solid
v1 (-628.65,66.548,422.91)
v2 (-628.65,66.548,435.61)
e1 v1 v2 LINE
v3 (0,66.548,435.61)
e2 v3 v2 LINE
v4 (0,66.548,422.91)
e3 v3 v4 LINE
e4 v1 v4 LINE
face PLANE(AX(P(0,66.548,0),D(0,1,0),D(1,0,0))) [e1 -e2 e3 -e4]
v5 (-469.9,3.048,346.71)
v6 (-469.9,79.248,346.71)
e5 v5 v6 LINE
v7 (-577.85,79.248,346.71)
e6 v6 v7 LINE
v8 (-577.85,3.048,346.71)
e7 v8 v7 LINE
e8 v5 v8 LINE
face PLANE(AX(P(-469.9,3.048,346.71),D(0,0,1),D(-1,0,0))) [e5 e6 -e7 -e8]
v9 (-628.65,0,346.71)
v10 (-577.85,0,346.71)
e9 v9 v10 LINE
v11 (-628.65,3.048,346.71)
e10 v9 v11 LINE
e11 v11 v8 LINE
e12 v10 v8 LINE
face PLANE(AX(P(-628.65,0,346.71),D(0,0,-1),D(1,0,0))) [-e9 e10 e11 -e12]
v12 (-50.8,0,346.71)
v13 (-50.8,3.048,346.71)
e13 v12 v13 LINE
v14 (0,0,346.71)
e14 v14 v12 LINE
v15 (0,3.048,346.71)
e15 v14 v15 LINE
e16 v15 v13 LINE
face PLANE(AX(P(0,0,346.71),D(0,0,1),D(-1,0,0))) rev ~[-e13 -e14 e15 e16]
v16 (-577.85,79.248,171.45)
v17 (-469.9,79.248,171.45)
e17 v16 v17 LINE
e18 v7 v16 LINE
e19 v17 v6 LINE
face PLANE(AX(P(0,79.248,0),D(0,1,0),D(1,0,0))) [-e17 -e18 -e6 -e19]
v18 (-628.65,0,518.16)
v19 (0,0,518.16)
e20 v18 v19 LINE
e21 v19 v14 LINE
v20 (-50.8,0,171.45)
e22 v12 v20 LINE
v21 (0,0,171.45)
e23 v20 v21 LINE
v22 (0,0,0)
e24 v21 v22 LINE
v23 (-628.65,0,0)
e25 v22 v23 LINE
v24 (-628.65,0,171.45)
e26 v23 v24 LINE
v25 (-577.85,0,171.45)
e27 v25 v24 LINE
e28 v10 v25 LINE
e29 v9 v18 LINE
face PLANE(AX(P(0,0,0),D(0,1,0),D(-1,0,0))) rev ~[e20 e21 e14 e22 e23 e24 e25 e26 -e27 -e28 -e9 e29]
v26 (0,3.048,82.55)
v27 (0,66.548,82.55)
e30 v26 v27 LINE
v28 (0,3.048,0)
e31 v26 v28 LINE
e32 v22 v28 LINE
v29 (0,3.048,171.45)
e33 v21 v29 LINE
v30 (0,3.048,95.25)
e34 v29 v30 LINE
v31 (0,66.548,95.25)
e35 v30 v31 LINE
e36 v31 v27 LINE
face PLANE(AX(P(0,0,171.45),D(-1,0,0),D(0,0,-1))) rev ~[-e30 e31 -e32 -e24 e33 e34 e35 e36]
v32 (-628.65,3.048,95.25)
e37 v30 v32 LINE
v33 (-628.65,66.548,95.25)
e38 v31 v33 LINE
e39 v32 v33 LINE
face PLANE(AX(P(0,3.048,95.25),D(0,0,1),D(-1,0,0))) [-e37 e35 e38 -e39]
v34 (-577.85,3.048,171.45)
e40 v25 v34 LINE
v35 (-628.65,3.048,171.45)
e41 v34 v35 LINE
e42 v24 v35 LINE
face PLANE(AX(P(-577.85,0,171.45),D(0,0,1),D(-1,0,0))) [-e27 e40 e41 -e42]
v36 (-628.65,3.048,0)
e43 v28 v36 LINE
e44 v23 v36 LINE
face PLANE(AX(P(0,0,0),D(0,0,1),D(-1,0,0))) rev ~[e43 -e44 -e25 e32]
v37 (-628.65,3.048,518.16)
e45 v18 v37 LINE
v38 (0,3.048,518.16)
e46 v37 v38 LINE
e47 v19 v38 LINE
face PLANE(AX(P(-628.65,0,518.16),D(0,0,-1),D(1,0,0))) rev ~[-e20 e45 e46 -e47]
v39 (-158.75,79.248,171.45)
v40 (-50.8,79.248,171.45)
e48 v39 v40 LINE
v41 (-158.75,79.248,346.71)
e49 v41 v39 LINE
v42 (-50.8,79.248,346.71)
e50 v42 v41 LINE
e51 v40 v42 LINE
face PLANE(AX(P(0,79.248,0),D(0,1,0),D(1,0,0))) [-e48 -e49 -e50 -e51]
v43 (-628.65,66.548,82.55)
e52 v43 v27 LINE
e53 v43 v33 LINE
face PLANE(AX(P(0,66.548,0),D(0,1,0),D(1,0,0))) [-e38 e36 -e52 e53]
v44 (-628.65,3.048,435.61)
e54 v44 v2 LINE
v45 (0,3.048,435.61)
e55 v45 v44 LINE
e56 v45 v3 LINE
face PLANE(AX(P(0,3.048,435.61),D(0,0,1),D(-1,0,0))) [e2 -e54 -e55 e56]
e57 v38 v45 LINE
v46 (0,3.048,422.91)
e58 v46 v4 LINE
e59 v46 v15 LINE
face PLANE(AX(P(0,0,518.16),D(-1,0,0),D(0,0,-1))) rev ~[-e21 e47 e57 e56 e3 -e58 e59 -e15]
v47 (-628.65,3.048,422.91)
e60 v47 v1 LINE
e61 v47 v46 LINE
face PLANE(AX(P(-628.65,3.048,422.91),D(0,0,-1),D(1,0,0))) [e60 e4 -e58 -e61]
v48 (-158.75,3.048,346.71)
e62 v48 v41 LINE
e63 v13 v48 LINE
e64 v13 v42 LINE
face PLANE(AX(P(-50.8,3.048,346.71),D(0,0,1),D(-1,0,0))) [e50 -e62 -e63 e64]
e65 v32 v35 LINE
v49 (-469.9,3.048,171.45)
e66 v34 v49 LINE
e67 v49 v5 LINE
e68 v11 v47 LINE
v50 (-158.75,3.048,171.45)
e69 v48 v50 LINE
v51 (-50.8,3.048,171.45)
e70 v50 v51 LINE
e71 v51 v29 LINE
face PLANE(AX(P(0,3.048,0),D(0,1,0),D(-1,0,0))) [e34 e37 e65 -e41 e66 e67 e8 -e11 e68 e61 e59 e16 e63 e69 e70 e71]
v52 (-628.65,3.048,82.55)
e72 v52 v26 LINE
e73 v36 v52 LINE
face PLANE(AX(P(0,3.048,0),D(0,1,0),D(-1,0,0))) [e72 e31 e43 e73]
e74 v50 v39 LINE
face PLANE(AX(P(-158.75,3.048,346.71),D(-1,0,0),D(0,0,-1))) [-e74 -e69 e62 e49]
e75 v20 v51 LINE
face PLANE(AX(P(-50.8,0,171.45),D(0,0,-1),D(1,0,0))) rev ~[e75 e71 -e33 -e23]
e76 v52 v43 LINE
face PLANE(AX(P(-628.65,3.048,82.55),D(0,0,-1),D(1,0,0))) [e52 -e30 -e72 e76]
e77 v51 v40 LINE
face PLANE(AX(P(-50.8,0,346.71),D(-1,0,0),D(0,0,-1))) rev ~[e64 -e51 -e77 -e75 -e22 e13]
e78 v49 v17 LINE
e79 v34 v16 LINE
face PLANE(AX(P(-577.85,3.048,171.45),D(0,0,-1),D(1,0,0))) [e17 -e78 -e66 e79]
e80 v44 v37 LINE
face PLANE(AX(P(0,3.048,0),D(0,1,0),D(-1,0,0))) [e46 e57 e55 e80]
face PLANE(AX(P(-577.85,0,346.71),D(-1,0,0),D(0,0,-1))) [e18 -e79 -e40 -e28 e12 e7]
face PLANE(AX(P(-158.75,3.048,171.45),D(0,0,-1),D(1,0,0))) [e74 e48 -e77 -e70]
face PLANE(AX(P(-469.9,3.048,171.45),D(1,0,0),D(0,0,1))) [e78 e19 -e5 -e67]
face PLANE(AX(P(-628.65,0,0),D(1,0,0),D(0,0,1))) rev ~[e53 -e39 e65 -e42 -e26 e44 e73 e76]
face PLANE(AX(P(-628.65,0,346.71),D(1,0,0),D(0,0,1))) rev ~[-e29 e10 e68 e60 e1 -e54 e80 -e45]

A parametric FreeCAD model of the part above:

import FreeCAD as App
import Part
import Sketcher
Q = App.Units.Quantity


def add_polygon(sketch, points):
    """Adds a closed chain of lines whose ends are joined by coincident constraints."""
    first, n = sketch.GeometryCount, len(points)
    for a, b in zip(points, points[1:] + points[:1]):
        sketch.addGeometry(Part.LineSegment(App.Vector(*a, 0), App.Vector(*b, 0)), False)
    for i in range(n):
        sketch.addConstraint(Sketcher.Constraint("Coincident", first + i, 2, first + (i + 1) % n, 1))

doc = App.newDocument("Part")
body = doc.addObject("PartDesign::Body", "Body")

sketch1 = body.newObject("Sketcher::SketchObject", "Sketch")
sketch1.AttachmentSupport = (doc.getObject("XZ_Plane"), [""])
sketch1.MapMode = "FlatFace"
add_polygon(sketch1, [(0, 171), (0, 0), (-629, 0), (-629, 171), (-578, 171), (-578, 347), (-629, 347), (-629, 518), (0, 518), (0, 347), (-51, 347), (-51, 171)])
sketch1.addConstraint([
    Sketcher.Constraint("Vertical", 0),
    Sketcher.Constraint("Horizontal", 1),
    Sketcher.Constraint("Vertical", 2),
    Sketcher.Constraint("Horizontal", 3),
    Sketcher.Constraint("Vertical", 4),
    Sketcher.Constraint("Horizontal", 5),
    Sketcher.Constraint("Vertical", 6),
    Sketcher.Constraint("Horizontal", 7),
    Sketcher.Constraint("Vertical", 8),
    Sketcher.Constraint("Horizontal", 9),
    Sketcher.Constraint("Vertical", 10),
    Sketcher.Constraint("Horizontal", 11),
    Sketcher.Constraint("Coincident", 0, 2, -1, 1),
    Sketcher.Constraint("PointOnObject", 7, 2, -2),
    Sketcher.Constraint("Horizontal", 5, 2, 8, 2),
    Sketcher.Constraint("Horizontal", 3, 2, 10, 2),
    Sketcher.Constraint("Vertical", 2, 2, 5, 2),
    Sketcher.Constraint("Equal", 5, 9),
    Sketcher.Constraint("Equal", 2, 6),
    Sketcher.Constraint("DistanceX", 3, 1, 3, 2, Q("2 in")),
    Sketcher.Constraint("DistanceX", 1, 2, 1, 1, Q("24.75 in")),
    Sketcher.Constraint("DistanceY", 0, 2, 0, 1, Q("6.75 in")),
    Sketcher.Constraint("DistanceY", -1, 1, 6, 2, Q("20.4 in")),
])
pad1 = body.newObject("PartDesign::Pad", "Pad")
pad1.Profile = sketch1
pad1.Length = Q("0.12 in")
pad1.Reversed = True

sketch2 = body.newObject("Sketcher::SketchObject", "Sketch001")
sketch2.AttachmentSupport = (doc.getObject("XZ_Plane"), [""])
sketch2.MapMode = "FlatFace"
sketch2.AttachmentOffset = App.Placement(App.Vector(0, 0, -0.12 * 25.4), App.Rotation())
add_polygon(sketch2, [(-470, 171), (-578, 171), (-578, 347), (-470, 347)])
add_polygon(sketch2, [(-159, 347), (-51, 347), (-51, 171), (-159, 171)])
sketch2.addConstraint([
    Sketcher.Constraint("Horizontal", 0),
    Sketcher.Constraint("Vertical", 1),
    Sketcher.Constraint("Horizontal", 2),
    Sketcher.Constraint("Vertical", 3),
    Sketcher.Constraint("Horizontal", 4),
    Sketcher.Constraint("Vertical", 5),
    Sketcher.Constraint("Horizontal", 6),
    Sketcher.Constraint("Vertical", 7),
    Sketcher.Constraint("Horizontal", 2, 2, 4, 2),
    Sketcher.Constraint("Horizontal", 3, 2, 5, 2),
    Sketcher.Constraint("Equal", 2, 4),
    Sketcher.Constraint("DistanceX", 0, 2, 0, 1, Q("4.25 in")),
    Sketcher.Constraint("DistanceY", 1, 1, 1, 2, Q("6.9 in")),
    Sketcher.Constraint("DistanceX", 4, 2, -1, 1, Q("2 in")),
    Sketcher.Constraint("DistanceX", 2, 2, -1, 1, Q("18.5 in")),
    Sketcher.Constraint("DistanceY", -1, 1, 0, 2, Q("6.75 in")),
])
pad2 = body.newObject("PartDesign::Pad", "Pad001")
pad2.Profile = sketch2
pad2.Length = Q("3 in")
pad2.Reversed = True

sketch3 = body.newObject("Sketcher::SketchObject", "Sketch002")
sketch3.AttachmentSupport = (doc.getObject("XZ_Plane"), [""])
sketch3.MapMode = "FlatFace"
sketch3.AttachmentOffset = App.Placement(App.Vector(0, 0, -0.12 * 25.4), App.Rotation())
add_polygon(sketch3, [(0, 423), (-629, 423), (-629, 436), (0, 436)])
add_polygon(sketch3, [(-629, 95), (0, 95), (0, 83), (-629, 83)])
sketch3.addConstraint([
    Sketcher.Constraint("Horizontal", 0),
    Sketcher.Constraint("Vertical", 1),
    Sketcher.Constraint("Horizontal", 2),
    Sketcher.Constraint("Vertical", 3),
    Sketcher.Constraint("Horizontal", 4),
    Sketcher.Constraint("Vertical", 5),
    Sketcher.Constraint("Horizontal", 6),
    Sketcher.Constraint("Vertical", 7),
    Sketcher.Constraint("PointOnObject", 2, 2, -2),
    Sketcher.Constraint("PointOnObject", 4, 2, -2),
    Sketcher.Constraint("Vertical", 1, 2, 6, 2),
    Sketcher.Constraint("Equal", 3, 5),
    Sketcher.Constraint("DistanceY", 1, 1, 1, 2, Q("0.5 in")),
    Sketcher.Constraint("DistanceX", 0, 2, 0, 1, Q("24.75 in")),
    Sketcher.Constraint("DistanceY", 4, 2, 3, 2, Q("12.9 in")),
    Sketcher.Constraint("DistanceY", -1, 1, 0, 2, Q("16.65 in")),
])
pad3 = body.newObject("PartDesign::Pad", "Pad002")
pad3.Profile = sketch3
pad3.Length = Q("2.5 in")
pad3.Reversed = True

doc.recompute()
